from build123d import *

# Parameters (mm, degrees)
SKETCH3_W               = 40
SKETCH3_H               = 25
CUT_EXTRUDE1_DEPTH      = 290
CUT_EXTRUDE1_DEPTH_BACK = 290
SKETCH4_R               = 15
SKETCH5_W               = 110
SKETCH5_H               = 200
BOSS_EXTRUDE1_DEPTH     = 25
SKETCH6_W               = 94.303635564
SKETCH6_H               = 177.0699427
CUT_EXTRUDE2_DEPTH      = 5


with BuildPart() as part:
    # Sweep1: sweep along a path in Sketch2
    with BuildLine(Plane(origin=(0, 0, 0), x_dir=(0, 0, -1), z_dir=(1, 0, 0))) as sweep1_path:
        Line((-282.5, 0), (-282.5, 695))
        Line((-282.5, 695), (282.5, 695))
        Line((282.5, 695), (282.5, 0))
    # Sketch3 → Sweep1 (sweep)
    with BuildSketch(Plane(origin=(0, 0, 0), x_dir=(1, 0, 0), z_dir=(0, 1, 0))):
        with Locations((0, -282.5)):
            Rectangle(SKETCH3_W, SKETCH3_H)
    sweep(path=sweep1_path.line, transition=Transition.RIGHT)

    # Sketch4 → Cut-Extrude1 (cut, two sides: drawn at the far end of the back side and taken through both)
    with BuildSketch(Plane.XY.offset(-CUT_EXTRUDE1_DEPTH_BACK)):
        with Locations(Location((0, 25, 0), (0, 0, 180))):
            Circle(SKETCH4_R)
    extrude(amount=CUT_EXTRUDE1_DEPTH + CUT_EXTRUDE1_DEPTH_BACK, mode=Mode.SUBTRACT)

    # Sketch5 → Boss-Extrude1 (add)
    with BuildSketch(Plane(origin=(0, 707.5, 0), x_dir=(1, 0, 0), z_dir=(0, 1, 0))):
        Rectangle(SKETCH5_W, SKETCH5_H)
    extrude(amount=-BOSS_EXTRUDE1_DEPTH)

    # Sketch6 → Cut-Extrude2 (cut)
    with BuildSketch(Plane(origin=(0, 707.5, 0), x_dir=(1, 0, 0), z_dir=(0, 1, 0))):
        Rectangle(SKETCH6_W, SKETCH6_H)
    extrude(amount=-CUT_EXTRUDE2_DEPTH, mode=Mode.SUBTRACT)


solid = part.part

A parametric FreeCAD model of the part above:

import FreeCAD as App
import Part
import Sketcher
Q = App.Units.Quantity

doc = App.newDocument("Part")
body = doc.addObject("PartDesign::Body", "Body")

# Sketch on XZ plane
sketch1 = body.newObject("Sketcher::SketchObject", "Sketch")
sketch1.AttachmentSupport = (doc.getObject("XZ_Plane"), [""])
sketch1.MapMode = "FlatFace"
sketch1.addGeometry([
    Part.LineSegment(App.Vector(-20, 270, 0), App.Vector(-20, 295, 0)),
    Part.LineSegment(App.Vector(-20, 295, 0), App.Vector(20, 295, 0)),
    Part.LineSegment(App.Vector(20, 295, 0), App.Vector(20, 270, 0)),
    Part.LineSegment(App.Vector(20, 270, 0), App.Vector(-20, 270, 0)),
], False)
sketch1.addConstraint([
    Sketcher.Constraint("Coincident", 0, 2, 1, 1),
    Sketcher.Constraint("Coincident", 1, 2, 2, 1),
    Sketcher.Constraint("Coincident", 2, 2, 3, 1),
    Sketcher.Constraint("Coincident", 3, 2, 0, 1),
    Sketcher.Constraint("Vertical", 0),
    Sketcher.Constraint("Horizontal", 1),
    Sketcher.Constraint("Vertical", 2),
    Sketcher.Constraint("Horizontal", 3),
    Sketcher.Constraint("DistanceX", 1, 1, 1, 2, Q("40 mm")),
    Sketcher.Constraint("DistanceY", 0, 1, 0, 2, Q("25 mm")),
    Sketcher.Constraint("DistanceX", 0, 2, -1, 1, Q("20 mm")),
    Sketcher.Constraint("DistanceY", -1, 1, 0, 2, Q("295 mm")),
])

# Sketch on YZ plane
sketch2 = body.newObject("Sketcher::SketchObject", "Sketch001")
sketch2.AttachmentSupport = (doc.getObject("YZ_Plane"), [""])
sketch2.MapMode = "FlatFace"
sketch2.addGeometry([
    Part.LineSegment(App.Vector(0, 282, 0), App.Vector(695, 282, 0)),
    Part.LineSegment(App.Vector(695, 282, 0), App.Vector(695, -282, 0)),
    Part.LineSegment(App.Vector(695, -282, 0), App.Vector(0, -282, 0)),
], False)
sketch2.addConstraint([
    Sketcher.Constraint("Coincident", 0, 2, 1, 1),
    Sketcher.Constraint("Coincident", 1, 2, 2, 1),
    Sketcher.Constraint("Horizontal", 0),
    Sketcher.Constraint("Vertical", 1),
    Sketcher.Constraint("Horizontal", 2),
    Sketcher.Constraint("Symmetric", 0, 1, 2, 2, -1, 1),
    Sketcher.Constraint("PointOnObject", 0, 1, -2),
    Sketcher.Constraint("DistanceX", 0, 1, 0, 2, Q("695 mm")),
    Sketcher.Constraint("DistanceY", 1, 2, 1, 1, Q("565 mm")),
])
doc.recompute()

additivepipe = body.newObject("PartDesign::AdditivePipe", "AdditivePipe")
additivepipe.Profile = sketch1
additivepipe.Spine = (sketch2, ["Edge1", "Edge2", "Edge3"])
additivepipe.Transition = "Right corner"

# Sketch on XY plane
sketch3 = body.newObject("Sketcher::SketchObject", "Sketch002")
sketch3.AttachmentSupport = (doc.getObject("XY_Plane"), [""])
sketch3.MapMode = "FlatFace"
sketch3.addGeometry(Part.Circle(App.Vector(0, 25, 0), App.Vector(0, 0, 1), 15), False)
sketch3.addConstraint([
    Sketcher.Constraint("PointOnObject", 0, 3, -2),
    Sketcher.Constraint("Diameter", 0, Q("30 mm")),
    Sketcher.Constraint("DistanceY", -1, 1, 0, 3, Q("25 mm")),
])
pocket1 = body.newObject("PartDesign::Pocket", "Pocket")
pocket1.Profile = sketch3
pocket1.Type = "TwoLengths"
pocket1.Length = 290
pocket1.Length2 = 290
pocket1.Reversed = True

# Sketch on XZ plane
sketch4 = body.newObject("Sketcher::SketchObject", "Sketch003")
sketch4.AttachmentSupport = (doc.getObject("XZ_Plane"), [""])
sketch4.MapMode = "FlatFace"
sketch4.AttachmentOffset = App.Placement(App.Vector(0, 0, -707.5), App.Rotation())
sketch4.addGeometry([
    Part.LineSegment(App.Vector(-55, -100, 0), App.Vector(-55, 100, 0)),
    Part.LineSegment(App.Vector(-55, 100, 0), App.Vector(55, 100, 0)),
    Part.LineSegment(App.Vector(55, 100, 0), App.Vector(55, -100, 0)),
    Part.LineSegment(App.Vector(55, -100, 0), App.Vector(-55, -100, 0)),
], False)
sketch4.addConstraint([
    Sketcher.Constraint("Coincident", 0, 2, 1, 1),
    Sketcher.Constraint("Coincident", 1, 2, 2, 1),
    Sketcher.Constraint("Coincident", 2, 2, 3, 1),
    Sketcher.Constraint("Coincident", 3, 2, 0, 1),
    Sketcher.Constraint("Vertical", 0),
    Sketcher.Constraint("Horizontal", 1),
    Sketcher.Constraint("Vertical", 2),
    Sketcher.Constraint("Horizontal", 3),
    Sketcher.Constraint("Symmetric", 0, 2, 2, 2, -1, 1),
    Sketcher.Constraint("DistanceX", 1, 1, 1, 2, Q("110 mm")),
    Sketcher.Constraint("DistanceY", 0, 1, 0, 2, Q("200 mm")),
])
pad1 = body.newObject("PartDesign::Pad", "Pad")
pad1.Profile = sketch4
pad1.Length = 25

# Sketch on XZ plane
sketch5 = body.newObject("Sketcher::SketchObject", "Sketch004")
sketch5.AttachmentSupport = (doc.getObject("XZ_Plane"), [""])
sketch5.MapMode = "FlatFace"
sketch5.AttachmentOffset = App.Placement(App.Vector(0, 0, -707.5), App.Rotation())
sketch5.addGeometry([
    Part.LineSegment(App.Vector(-47, -89, 0), App.Vector(-47, 89, 0)),
    Part.LineSegment(App.Vector(-47, 89, 0), App.Vector(47, 89, 0)),
    Part.LineSegment(App.Vector(47, 89, 0), App.Vector(47, -89, 0)),
    Part.LineSegment(App.Vector(47, -89, 0), App.Vector(-47, -89, 0)),
], False)
sketch5.addConstraint([
    Sketcher.Constraint("Coincident", 0, 2, 1, 1),
    Sketcher.Constraint("Coincident", 1, 2, 2, 1),
    Sketcher.Constraint("Coincident", 2, 2, 3, 1),
    Sketcher.Constraint("Coincident", 3, 2, 0, 1),
    Sketcher.Constraint("Vertical", 0),
    Sketcher.Constraint("Horizontal", 1),
    Sketcher.Constraint("Vertical", 2),
    Sketcher.Constraint("Horizontal", 3),
    Sketcher.Constraint("Symmetric", 0, 2, 2, 2, -1, 1),
    Sketcher.Constraint("DistanceX", 1, 1, 1, 2, Q("94.303636 mm")),
    Sketcher.Constraint("DistanceY", 0, 1, 0, 2, Q("177.069943 mm")),
])
pocket2 = body.newObject("PartDesign::Pocket", "Pocket001")
pocket2.Profile = sketch5
pocket2.Length = 5
pocket2.Reversed = True

doc.recompute()
